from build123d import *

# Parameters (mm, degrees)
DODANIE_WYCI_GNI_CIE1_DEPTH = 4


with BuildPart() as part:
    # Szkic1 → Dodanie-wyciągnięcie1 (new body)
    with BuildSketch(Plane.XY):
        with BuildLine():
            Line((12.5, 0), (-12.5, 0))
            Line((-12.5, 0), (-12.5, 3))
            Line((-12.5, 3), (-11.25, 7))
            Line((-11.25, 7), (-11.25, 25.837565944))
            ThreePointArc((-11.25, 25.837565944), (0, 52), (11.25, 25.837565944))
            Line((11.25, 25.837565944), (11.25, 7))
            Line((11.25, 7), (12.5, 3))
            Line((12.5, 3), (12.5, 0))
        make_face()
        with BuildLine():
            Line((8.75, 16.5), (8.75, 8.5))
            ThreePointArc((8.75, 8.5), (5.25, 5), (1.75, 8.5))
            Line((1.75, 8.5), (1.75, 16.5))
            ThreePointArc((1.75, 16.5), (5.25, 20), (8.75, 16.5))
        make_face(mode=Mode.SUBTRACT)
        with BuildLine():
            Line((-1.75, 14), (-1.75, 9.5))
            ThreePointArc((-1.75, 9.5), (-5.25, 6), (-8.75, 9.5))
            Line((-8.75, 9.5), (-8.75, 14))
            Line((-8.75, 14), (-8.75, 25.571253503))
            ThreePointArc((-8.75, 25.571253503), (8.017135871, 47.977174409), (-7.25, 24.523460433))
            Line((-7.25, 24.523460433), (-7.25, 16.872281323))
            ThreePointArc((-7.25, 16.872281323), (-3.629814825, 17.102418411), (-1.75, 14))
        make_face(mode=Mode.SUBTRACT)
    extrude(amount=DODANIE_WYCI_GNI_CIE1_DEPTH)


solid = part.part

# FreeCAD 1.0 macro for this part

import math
import FreeCAD as App
import Part
import Sketcher

doc = App.newDocument("Part")
body = doc.addObject("PartDesign::Body", "Body")

sketch1 = doc.addObject("Sketcher::SketchObject", "Sketch")
body.addObject(sketch1)
sketch1.AttachmentSupport = (doc.XY_Plane, [""])
sketch1.MapMode = "FlatFace"
sketch1.addGeometry([
    Part.LineSegment(App.Vector(-12.5, 0, 0), App.Vector(12.5, 0, 0)),
    Part.LineSegment(App.Vector(12.5, 0, 0), App.Vector(12.5, 3, 0)),
    Part.LineSegment(App.Vector(12.5, 3, 0), App.Vector(11.25, 7, 0)),
    Part.LineSegment(App.Vector(11.25, 7, 0), App.Vector(11.25, 25.837566, 0)),
    Part.ArcOfCircle(Part.Circle(App.Vector(0, 36.5, 0), App.Vector(0, 0, 1), 15.5), math.radians(-43.464023), math.radians(223.464023)),
    Part.LineSegment(App.Vector(-11.25, 25.837566, 0), App.Vector(-11.25, 7, 0)),
    Part.LineSegment(App.Vector(-11.25, 7, 0), App.Vector(-12.5, 3, 0)),
    Part.LineSegment(App.Vector(-12.5, 3, 0), App.Vector(-12.5, 0, 0)),
    Part.LineSegment(App.Vector(8.75, 16.5, 0), App.Vector(8.75, 8.5, 0)),
    Part.ArcOfCircle(Part.Circle(App.Vector(5.25, 8.5, 0), App.Vector(0, 0, 1), 3.5), math.radians(180), math.radians(360)),
    Part.LineSegment(App.Vector(1.75, 8.5, 0), App.Vector(1.75, 16.5, 0)),
    Part.ArcOfCircle(Part.Circle(App.Vector(5.25, 16.5, 0), App.Vector(0, 0, 1), 3.5), math.radians(0), math.radians(180)),
    Part.LineSegment(App.Vector(-1.75, 14, 0), App.Vector(-1.75, 9.5, 0)),
    Part.ArcOfCircle(Part.Circle(App.Vector(-5.25, 9.5, 0), App.Vector(0, 0, 1), 3.5), math.radians(180), math.radians(360)),
    Part.LineSegment(App.Vector(-8.75, 9.5, 0), App.Vector(-8.75, 25.571254, 0)),
    Part.ArcOfCircle(Part.Circle(App.Vector(0, 36.5, 0), App.Vector(0, 0, 1), 14), math.radians(-121.188622), math.radians(231.317813)),
    Part.LineSegment(App.Vector(-7.25, 24.52346, 0), App.Vector(-7.25, 16.872281, 0)),
    Part.ArcOfCircle(Part.Circle(App.Vector(-5.25, 14, 0), App.Vector(0, 0, 1), 3.5), math.radians(0), math.radians(124.849905)),
], False)
sketch1.addConstraint([
    Sketcher.Constraint("Coincident", 0, 2, 1, 1),
    Sketcher.Constraint("Coincident", 1, 2, 2, 1),
    Sketcher.Constraint("Coincident", 2, 2, 3, 1),
    Sketcher.Constraint("Coincident", 3, 2, 4, 1),
    Sketcher.Constraint("Coincident", 4, 2, 5, 1),
    Sketcher.Constraint("Coincident", 5, 2, 6, 1),
    Sketcher.Constraint("Coincident", 6, 2, 7, 1),
    Sketcher.Constraint("Coincident", 7, 2, 0, 1),
    Sketcher.Constraint("Tangent", 8, 2, 9, 2),
    Sketcher.Constraint("Tangent", 9, 1, 10, 1),
    Sketcher.Constraint("Tangent", 10, 2, 11, 2),
    Sketcher.Constraint("Tangent", 11, 1, 8, 1),
    Sketcher.Constraint("Tangent", 12, 2, 13, 2),
    Sketcher.Constraint("Tangent", 13, 1, 14, 1),
    Sketcher.Constraint("Coincident", 14, 2, 15, 2),
    Sketcher.Constraint("Coincident", 15, 1, 16, 1),
    Sketcher.Constraint("Coincident", 16, 2, 17, 2),
    Sketcher.Constraint("Tangent", 17, 1, 12, 1),
    Sketcher.Constraint("Horizontal", 0),
    Sketcher.Constraint("Vertical", 1),
    Sketcher.Constraint("Vertical", 3),
    Sketcher.Constraint("Vertical", 5),
    Sketcher.Constraint("Vertical", 7),
    Sketcher.Constraint("Vertical", 8),
    Sketcher.Constraint("Vertical", 10),
    Sketcher.Constraint("Vertical", 12),
    Sketcher.Constraint("Vertical", 14),
    Sketcher.Constraint("Vertical", 16),
    Sketcher.Constraint("Coincident", 15, 3, 4, 3),
    Sketcher.Constraint("Equal", 11, 13),
    Sketcher.Constraint("Equal", 13, 17),
    Sketcher.Constraint("Symmetric", 0, 2, 7, 2, -1, 1),
    Sketcher.Constraint("Symmetric", 3, 2, 4, 2, -2),
    Sketcher.Constraint("Horizontal", 2, 2, 5, 2),
    Sketcher.Constraint("Horizontal", 1, 2, 6, 2),
    Sketcher.Constraint("Radius", 15, 14.0),
    Sketcher.Constraint("Radius", 4, 15.5),
    Sketcher.Constraint("Radius", 9, 3.5),
    Sketcher.Constraint("DistanceX", 0, 1, 0, 2, 25.0),
    Sketcher.Constraint("DistanceY", 1, 1, 1, 2, 3.0),
    Sketcher.Constraint("DistanceY", 8, 2, 8, 1, 8.0),
    Sketcher.Constraint("DistanceY", 12, 2, 12, 1, 4.5),
    Sketcher.Constraint("DistanceY", -1, 1, 17, 3, 14.0),
    Sketcher.Constraint("DistanceY", -1, 1, 2, 2, 7.0),
    Sketcher.Constraint("DistanceY", 9, 3, 4, 3, 28.0),
    Sketcher.Constraint("DistanceY", 9, 3, 13, 3, 1.0),
    Sketcher.Constraint("DistanceX", 9, 3, 2, 2, 6.0),
    Sketcher.Constraint("DistanceX", 4, 2, 17, 3, 6.0),
    Sketcher.Constraint("DistanceX", 13, 3, 9, 1, 7.0),
    Sketcher.Constraint("DistanceX", 4, 2, 15, 1, 4.0),
])
pad1 = doc.addObject("PartDesign::Pad", "Pad")
body.addObject(pad1)
pad1.Profile = sketch1
pad1.Length = 4

doc.recompute()
